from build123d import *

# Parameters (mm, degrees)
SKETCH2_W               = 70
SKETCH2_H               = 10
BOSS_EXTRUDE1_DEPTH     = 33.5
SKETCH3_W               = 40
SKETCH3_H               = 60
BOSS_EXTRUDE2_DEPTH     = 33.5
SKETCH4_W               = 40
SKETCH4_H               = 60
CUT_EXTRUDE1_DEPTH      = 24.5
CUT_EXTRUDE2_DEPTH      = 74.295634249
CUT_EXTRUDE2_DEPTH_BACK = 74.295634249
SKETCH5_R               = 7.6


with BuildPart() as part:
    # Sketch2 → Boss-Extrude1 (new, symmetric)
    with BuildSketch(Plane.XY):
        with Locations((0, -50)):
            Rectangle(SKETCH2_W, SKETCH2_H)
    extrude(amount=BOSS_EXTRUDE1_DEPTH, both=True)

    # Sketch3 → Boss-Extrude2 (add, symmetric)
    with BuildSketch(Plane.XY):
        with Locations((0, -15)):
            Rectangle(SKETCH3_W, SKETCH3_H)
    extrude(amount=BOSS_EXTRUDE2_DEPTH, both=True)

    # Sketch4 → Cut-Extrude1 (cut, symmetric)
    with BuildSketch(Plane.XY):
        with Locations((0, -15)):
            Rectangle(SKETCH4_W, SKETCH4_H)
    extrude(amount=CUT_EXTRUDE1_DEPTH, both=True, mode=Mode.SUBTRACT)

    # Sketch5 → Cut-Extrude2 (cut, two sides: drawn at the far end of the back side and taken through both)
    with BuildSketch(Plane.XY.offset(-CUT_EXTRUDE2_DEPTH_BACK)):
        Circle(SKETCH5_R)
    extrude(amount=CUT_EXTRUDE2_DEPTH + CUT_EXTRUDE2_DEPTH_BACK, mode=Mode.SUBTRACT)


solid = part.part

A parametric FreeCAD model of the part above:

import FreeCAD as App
import Part
import Sketcher

V = App.Vector


def add_polygon(sketch, points):
    """Adds a closed chain of lines whose ends are joined by coincident constraints."""
    first, n = sketch.GeometryCount, len(points)
    for a, b in zip(points, points[1:] + points[:1]):
        sketch.addGeometry(Part.LineSegment(App.Vector(*a, 0), App.Vector(*b, 0)), False)
    for i in range(n):
        sketch.addConstraint(Sketcher.Constraint("Coincident", first + i, 2, first + (i + 1) % n, 1))

doc = App.newDocument("Part")
body = doc.addObject("PartDesign::Body", "Body")

sketch1 = body.newObject("Sketcher::SketchObject", "Sketch")
sketch1.AttachmentSupport = (doc.getObject("XY_Plane"), [""])
sketch1.MapMode = "FlatFace"
add_polygon(sketch1, [(-35, -45), (-35, -55), (35, -55), (35, -45)])
sketch1.addConstraint([
    Sketcher.Constraint("Vertical", 0),
    Sketcher.Constraint("Horizontal", 1),
    Sketcher.Constraint("Vertical", 2),
    Sketcher.Constraint("Horizontal", 3),
    Sketcher.Constraint("DistanceX", 1, 1, 1, 2, 70.0),
    Sketcher.Constraint("DistanceY", 0, 2, 0, 1, 10.0),
    Sketcher.Constraint("DistanceX", 0, 2, -1, 1, 35.0),
    Sketcher.Constraint("DistanceY", 0, 2, -1, 1, 55.0),
])
pad1 = body.newObject("PartDesign::Pad", "Pad")
pad1.Profile = sketch1
pad1.Length = 67
pad1.Midplane = True

sketch2 = body.newObject("Sketcher::SketchObject", "Sketch001")
sketch2.AttachmentSupport = (doc.getObject("XY_Plane"), [""])
sketch2.MapMode = "FlatFace"
add_polygon(sketch2, [(-20, 15), (-20, -45), (20, -45), (20, 15)])
sketch2.addConstraint([
    Sketcher.Constraint("Vertical", 0),
    Sketcher.Constraint("Horizontal", 1),
    Sketcher.Constraint("Vertical", 2),
    Sketcher.Constraint("Horizontal", 3),
    Sketcher.Constraint("DistanceX", 1, 1, 1, 2, 40.0),
    Sketcher.Constraint("DistanceY", 0, 2, 0, 1, 60.0),
    Sketcher.Constraint("DistanceX", 0, 2, -1, 1, 20.0),
    Sketcher.Constraint("DistanceY", 0, 2, -1, 1, 45.0),
])
pad2 = body.newObject("PartDesign::Pad", "Pad001")
pad2.Profile = sketch2
pad2.Length = 67
pad2.Midplane = True

sketch3 = body.newObject("Sketcher::SketchObject", "Sketch002")
sketch3.AttachmentSupport = (doc.getObject("XY_Plane"), [""])
sketch3.MapMode = "FlatFace"
add_polygon(sketch3, [(-20, 15), (-20, -45), (20, -45), (20, 15)])
sketch3.addConstraint([
    Sketcher.Constraint("Vertical", 0),
    Sketcher.Constraint("Horizontal", 1),
    Sketcher.Constraint("Vertical", 2),
    Sketcher.Constraint("Horizontal", 3),
    Sketcher.Constraint("DistanceX", 1, 1, 1, 2, 40.0),
    Sketcher.Constraint("DistanceY", 0, 2, 0, 1, 60.0),
    Sketcher.Constraint("DistanceX", 0, 2, -1, 1, 20.0),
    Sketcher.Constraint("DistanceY", 0, 2, -1, 1, 45.0),
])
pocket1 = body.newObject("PartDesign::Pocket", "Pocket")
pocket1.Profile = sketch3
pocket1.Length = 49
pocket1.Midplane = True

sketch4 = body.newObject("Sketcher::SketchObject", "Sketch003")
sketch4.AttachmentSupport = (doc.getObject("XY_Plane"), [""])
sketch4.MapMode = "FlatFace"
sketch4.addGeometry(Part.Circle(V(0, 0, 0), V(0, 0, 1), 8), False)
sketch4.addConstraint([
    Sketcher.Constraint("Coincident", 0, 3, -1, 1),
    Sketcher.Constraint("Diameter", 0, 15.2),
])
pocket2 = body.newObject("PartDesign::Pocket", "Pocket001")
pocket2.Profile = sketch4
pocket2.Type = "ThroughAll"
pocket2.Midplane = True

doc.recompute()
